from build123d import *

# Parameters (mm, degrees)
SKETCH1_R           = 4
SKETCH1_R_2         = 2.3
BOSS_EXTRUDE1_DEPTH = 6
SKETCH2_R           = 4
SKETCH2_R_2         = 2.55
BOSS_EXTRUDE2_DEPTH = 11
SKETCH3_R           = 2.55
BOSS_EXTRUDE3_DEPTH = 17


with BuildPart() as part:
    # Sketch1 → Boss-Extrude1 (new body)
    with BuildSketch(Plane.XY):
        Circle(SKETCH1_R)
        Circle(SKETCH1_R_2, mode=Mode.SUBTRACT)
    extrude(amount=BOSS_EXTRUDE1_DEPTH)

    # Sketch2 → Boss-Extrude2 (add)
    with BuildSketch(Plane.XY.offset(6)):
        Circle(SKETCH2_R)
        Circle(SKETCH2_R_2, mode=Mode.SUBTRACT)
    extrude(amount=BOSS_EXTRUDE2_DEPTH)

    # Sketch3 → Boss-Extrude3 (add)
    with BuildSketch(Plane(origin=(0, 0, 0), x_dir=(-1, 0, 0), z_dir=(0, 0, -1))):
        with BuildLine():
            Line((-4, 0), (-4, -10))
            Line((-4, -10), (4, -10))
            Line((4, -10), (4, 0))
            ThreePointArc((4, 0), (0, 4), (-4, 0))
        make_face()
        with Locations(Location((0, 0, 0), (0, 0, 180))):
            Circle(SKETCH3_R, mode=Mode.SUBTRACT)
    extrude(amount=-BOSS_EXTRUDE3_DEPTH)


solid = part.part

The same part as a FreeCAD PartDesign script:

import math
import FreeCAD as App
import Part
import Sketcher

doc = App.newDocument("Part")
body = doc.addObject("PartDesign::Body", "Body")

# Sketch on XY plane
sketch1 = body.newObject("Sketcher::SketchObject", "Sketch")
sketch1.AttachmentSupport = (doc.getObject("XY_Plane"), [""])
sketch1.MapMode = "FlatFace"
sketch1.addGeometry(Part.Circle(App.Vector(0, 0, 0), App.Vector(0, 0, 1), 4), False)
sketch1.addGeometry(Part.Circle(App.Vector(0, 0, 0), App.Vector(0, 0, 1), 2.3), False)
sketch1.addConstraint(Sketcher.Constraint("Coincident", 0, 3, -1, 1))
sketch1.addConstraint(Sketcher.Constraint("Coincident", 1, 3, -1, 1))
sketch1.addConstraint(Sketcher.Constraint("Diameter", 0, 8.0))
sketch1.addConstraint(Sketcher.Constraint("Diameter", 1, 4.6))
pad1 = body.newObject("PartDesign::Pad", "Pad")
pad1.Profile = sketch1
pad1.Length = 6

# Sketch on XY plane
sketch2 = body.newObject("Sketcher::SketchObject", "Sketch001")
sketch2.AttachmentSupport = (doc.getObject("XY_Plane"), [""])
sketch2.MapMode = "FlatFace"
sketch2.AttachmentOffset = App.Placement(App.Vector(0, 0, 6), App.Rotation())
sketch2.addGeometry(Part.Circle(App.Vector(0, 0, 0), App.Vector(0, 0, 1), 4), False)
sketch2.addGeometry(Part.Circle(App.Vector(0, 0, 0), App.Vector(0, 0, 1), 2.5), False)
sketch2.addConstraint(Sketcher.Constraint("Coincident", 0, 3, -1, 1))
sketch2.addConstraint(Sketcher.Constraint("Coincident", 1, 3, -1, 1))
sketch2.addConstraint(Sketcher.Constraint("Diameter", 0, 8.0))
sketch2.addConstraint(Sketcher.Constraint("Diameter", 1, 5.1))
pad2 = body.newObject("PartDesign::Pad", "Pad001")
pad2.Profile = sketch2
pad2.Length = 11

# Sketch on XY plane
sketch3 = body.newObject("Sketcher::SketchObject", "Sketch002")
sketch3.AttachmentSupport = (doc.getObject("XY_Plane"), [""])
sketch3.MapMode = "FlatFace"
sketch3.addGeometry(Part.LineSegment(App.Vector(4, 0, 0), App.Vector(4, -10, 0)), False)
sketch3.addGeometry(Part.LineSegment(App.Vector(4, -10, 0), App.Vector(-4, -10, 0)), False)
sketch3.addGeometry(Part.LineSegment(App.Vector(-4, -10, 0), App.Vector(-4, 0, 0)), False)
sketch3.addGeometry(Part.ArcOfCircle(Part.Circle(App.Vector(0, 0, 0), App.Vector(0, 0, 1), 4), math.radians(0), math.radians(180)), False)
sketch3.addGeometry(Part.Circle(App.Vector(0, 0, 0), App.Vector(0, 0, 1), 2.5), False)
sketch3.addConstraint(Sketcher.Constraint("Coincident", 0, 2, 1, 1))
sketch3.addConstraint(Sketcher.Constraint("Coincident", 1, 2, 2, 1))
sketch3.addConstraint(Sketcher.Constraint("Tangent", 2, 2, 3, 2))
sketch3.addConstraint(Sketcher.Constraint("Tangent", 3, 1, 0, 1))
sketch3.addConstraint(Sketcher.Constraint("Vertical", 0))
sketch3.addConstraint(Sketcher.Constraint("Horizontal", 1))
sketch3.addConstraint(Sketcher.Constraint("Vertical", 2))
sketch3.addConstraint(Sketcher.Constraint("Coincident", 3, 3, -1, 1))
sketch3.addConstraint(Sketcher.Constraint("Coincident", 4, 3, -1, 1))
sketch3.addConstraint(Sketcher.Constraint("Radius", 3, 4.0))
sketch3.addConstraint(Sketcher.Constraint("Diameter", 4, 5.1))
sketch3.addConstraint(Sketcher.Constraint("DistanceY", 0, 2, 0, 1, 10.0))
pad3 = body.newObject("PartDesign::Pad", "Pad002")
pad3.Profile = sketch3
pad3.Length = 17

doc.recompute()
